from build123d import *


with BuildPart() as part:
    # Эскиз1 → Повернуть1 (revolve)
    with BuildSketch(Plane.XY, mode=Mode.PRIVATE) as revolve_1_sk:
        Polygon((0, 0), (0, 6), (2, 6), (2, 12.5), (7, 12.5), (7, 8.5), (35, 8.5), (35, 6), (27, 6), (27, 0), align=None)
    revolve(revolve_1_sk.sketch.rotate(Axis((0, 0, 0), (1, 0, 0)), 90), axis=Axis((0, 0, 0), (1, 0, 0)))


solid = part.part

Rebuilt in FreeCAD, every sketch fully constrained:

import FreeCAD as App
import Part
import Sketcher

doc = App.newDocument("Part")
params = doc.addObject("Spreadsheet::Sheet", "Params")
for row, (alias, value) in enumerate([
    ("sketch1_width", "27 mm"),
    ("sketch1_width2", "8 mm"),
    ("sketch1_width3", "28 mm"),
    ("sketch1_width4", "5 mm"),
    ("sketch1_height", "6 mm"),
    ("revolution_angle", "360 deg"),
], start=1):
    params.set(f"A{row}", alias)
    params.set(f"B{row}", "=" + value)
    params.setAlias(f"B{row}", alias)

body = doc.addObject("PartDesign::Body", "Body")

# Sketch on XY plane
sketch1 = doc.addObject("Sketcher::SketchObject", "Sketch")
body.addObject(sketch1)
sketch1.AttachmentSupport = (doc.XY_Plane, [""])
sketch1.MapMode = "FlatFace"
sketch1.addGeometry([
    Part.LineSegment(App.Vector(0, 6, 0), App.Vector(0, 0, 0)),  # 0
    Part.LineSegment(App.Vector(0, 0, 0), App.Vector(27, 0, 0)),  # 1
    Part.LineSegment(App.Vector(27, 0, 0), App.Vector(27, 6, 0)),  # 2
    Part.LineSegment(App.Vector(27, 6, 0), App.Vector(35, 6, 0)),  # 3
    Part.LineSegment(App.Vector(35, 6, 0), App.Vector(35, 8.5, 0)),  # 4
    Part.LineSegment(App.Vector(35, 8.5, 0), App.Vector(7, 8.5, 0)),  # 5
    Part.LineSegment(App.Vector(7, 8.5, 0), App.Vector(7, 12.5, 0)),  # 6
    Part.LineSegment(App.Vector(7, 12.5, 0), App.Vector(2, 12.5, 0)),  # 7
    Part.LineSegment(App.Vector(2, 12.5, 0), App.Vector(2, 6, 0)),  # 8
    Part.LineSegment(App.Vector(2, 6, 0), App.Vector(0, 6, 0)),  # 9
], False)
sketch1.addConstraint([
    Sketcher.Constraint("Coincident", 0, 2, 1, 1),
    Sketcher.Constraint("Coincident", 1, 2, 2, 1),
    Sketcher.Constraint("Coincident", 2, 2, 3, 1),
    Sketcher.Constraint("Coincident", 3, 2, 4, 1),
    Sketcher.Constraint("Coincident", 4, 2, 5, 1),
    Sketcher.Constraint("Coincident", 5, 2, 6, 1),
    Sketcher.Constraint("Coincident", 6, 2, 7, 1),
    Sketcher.Constraint("Coincident", 7, 2, 8, 1),
    Sketcher.Constraint("Coincident", 8, 2, 9, 1),
    Sketcher.Constraint("Coincident", 9, 2, 0, 1),
    Sketcher.Constraint("Vertical", 0),
    Sketcher.Constraint("Horizontal", 1),
    Sketcher.Constraint("Vertical", 2),
    Sketcher.Constraint("Horizontal", 3),
    Sketcher.Constraint("Vertical", 4),
    Sketcher.Constraint("Horizontal", 5),
    Sketcher.Constraint("Vertical", 6),
    Sketcher.Constraint("Horizontal", 7),
    Sketcher.Constraint("Vertical", 8),
    Sketcher.Constraint("Horizontal", 9),
    Sketcher.Constraint("Coincident", 0, 2, -1, 1),
    Sketcher.Constraint("Horizontal", 3, 2, 8, 2),
    Sketcher.Constraint("DistanceX", 1, 1, 1, 2, 27.0),
    Sketcher.Constraint("DistanceX", 3, 1, 3, 2, 8.0),
    Sketcher.Constraint("DistanceX", 5, 2, 5, 1, 28.0),
    Sketcher.Constraint("DistanceX", 7, 2, 7, 1, 5.0),
    Sketcher.Constraint("DistanceY", 0, 2, 0, 1, 6.0),
    Sketcher.Constraint("DistanceY", 6, 1, 6, 2, 4.0),
    Sketcher.Constraint("DistanceY", 4, 1, 4, 2, 2.5),
])
sketch1.setExpression("Constraints[22]", "Params.sketch1_width")
sketch1.setExpression("Constraints[23]", "Params.sketch1_width2")
sketch1.setExpression("Constraints[24]", "Params.sketch1_width3")
sketch1.setExpression("Constraints[25]", "Params.sketch1_width4")
sketch1.setExpression("Constraints[26]", "Params.sketch1_height")
revolution = doc.addObject("PartDesign::Revolution", "Revolution")
body.addObject(revolution)
revolution.Profile = sketch1
revolution.ReferenceAxis = (sketch1, ["H_Axis"])
revolution.setExpression("Angle", "Params.revolution_angle")

doc.recompute()
